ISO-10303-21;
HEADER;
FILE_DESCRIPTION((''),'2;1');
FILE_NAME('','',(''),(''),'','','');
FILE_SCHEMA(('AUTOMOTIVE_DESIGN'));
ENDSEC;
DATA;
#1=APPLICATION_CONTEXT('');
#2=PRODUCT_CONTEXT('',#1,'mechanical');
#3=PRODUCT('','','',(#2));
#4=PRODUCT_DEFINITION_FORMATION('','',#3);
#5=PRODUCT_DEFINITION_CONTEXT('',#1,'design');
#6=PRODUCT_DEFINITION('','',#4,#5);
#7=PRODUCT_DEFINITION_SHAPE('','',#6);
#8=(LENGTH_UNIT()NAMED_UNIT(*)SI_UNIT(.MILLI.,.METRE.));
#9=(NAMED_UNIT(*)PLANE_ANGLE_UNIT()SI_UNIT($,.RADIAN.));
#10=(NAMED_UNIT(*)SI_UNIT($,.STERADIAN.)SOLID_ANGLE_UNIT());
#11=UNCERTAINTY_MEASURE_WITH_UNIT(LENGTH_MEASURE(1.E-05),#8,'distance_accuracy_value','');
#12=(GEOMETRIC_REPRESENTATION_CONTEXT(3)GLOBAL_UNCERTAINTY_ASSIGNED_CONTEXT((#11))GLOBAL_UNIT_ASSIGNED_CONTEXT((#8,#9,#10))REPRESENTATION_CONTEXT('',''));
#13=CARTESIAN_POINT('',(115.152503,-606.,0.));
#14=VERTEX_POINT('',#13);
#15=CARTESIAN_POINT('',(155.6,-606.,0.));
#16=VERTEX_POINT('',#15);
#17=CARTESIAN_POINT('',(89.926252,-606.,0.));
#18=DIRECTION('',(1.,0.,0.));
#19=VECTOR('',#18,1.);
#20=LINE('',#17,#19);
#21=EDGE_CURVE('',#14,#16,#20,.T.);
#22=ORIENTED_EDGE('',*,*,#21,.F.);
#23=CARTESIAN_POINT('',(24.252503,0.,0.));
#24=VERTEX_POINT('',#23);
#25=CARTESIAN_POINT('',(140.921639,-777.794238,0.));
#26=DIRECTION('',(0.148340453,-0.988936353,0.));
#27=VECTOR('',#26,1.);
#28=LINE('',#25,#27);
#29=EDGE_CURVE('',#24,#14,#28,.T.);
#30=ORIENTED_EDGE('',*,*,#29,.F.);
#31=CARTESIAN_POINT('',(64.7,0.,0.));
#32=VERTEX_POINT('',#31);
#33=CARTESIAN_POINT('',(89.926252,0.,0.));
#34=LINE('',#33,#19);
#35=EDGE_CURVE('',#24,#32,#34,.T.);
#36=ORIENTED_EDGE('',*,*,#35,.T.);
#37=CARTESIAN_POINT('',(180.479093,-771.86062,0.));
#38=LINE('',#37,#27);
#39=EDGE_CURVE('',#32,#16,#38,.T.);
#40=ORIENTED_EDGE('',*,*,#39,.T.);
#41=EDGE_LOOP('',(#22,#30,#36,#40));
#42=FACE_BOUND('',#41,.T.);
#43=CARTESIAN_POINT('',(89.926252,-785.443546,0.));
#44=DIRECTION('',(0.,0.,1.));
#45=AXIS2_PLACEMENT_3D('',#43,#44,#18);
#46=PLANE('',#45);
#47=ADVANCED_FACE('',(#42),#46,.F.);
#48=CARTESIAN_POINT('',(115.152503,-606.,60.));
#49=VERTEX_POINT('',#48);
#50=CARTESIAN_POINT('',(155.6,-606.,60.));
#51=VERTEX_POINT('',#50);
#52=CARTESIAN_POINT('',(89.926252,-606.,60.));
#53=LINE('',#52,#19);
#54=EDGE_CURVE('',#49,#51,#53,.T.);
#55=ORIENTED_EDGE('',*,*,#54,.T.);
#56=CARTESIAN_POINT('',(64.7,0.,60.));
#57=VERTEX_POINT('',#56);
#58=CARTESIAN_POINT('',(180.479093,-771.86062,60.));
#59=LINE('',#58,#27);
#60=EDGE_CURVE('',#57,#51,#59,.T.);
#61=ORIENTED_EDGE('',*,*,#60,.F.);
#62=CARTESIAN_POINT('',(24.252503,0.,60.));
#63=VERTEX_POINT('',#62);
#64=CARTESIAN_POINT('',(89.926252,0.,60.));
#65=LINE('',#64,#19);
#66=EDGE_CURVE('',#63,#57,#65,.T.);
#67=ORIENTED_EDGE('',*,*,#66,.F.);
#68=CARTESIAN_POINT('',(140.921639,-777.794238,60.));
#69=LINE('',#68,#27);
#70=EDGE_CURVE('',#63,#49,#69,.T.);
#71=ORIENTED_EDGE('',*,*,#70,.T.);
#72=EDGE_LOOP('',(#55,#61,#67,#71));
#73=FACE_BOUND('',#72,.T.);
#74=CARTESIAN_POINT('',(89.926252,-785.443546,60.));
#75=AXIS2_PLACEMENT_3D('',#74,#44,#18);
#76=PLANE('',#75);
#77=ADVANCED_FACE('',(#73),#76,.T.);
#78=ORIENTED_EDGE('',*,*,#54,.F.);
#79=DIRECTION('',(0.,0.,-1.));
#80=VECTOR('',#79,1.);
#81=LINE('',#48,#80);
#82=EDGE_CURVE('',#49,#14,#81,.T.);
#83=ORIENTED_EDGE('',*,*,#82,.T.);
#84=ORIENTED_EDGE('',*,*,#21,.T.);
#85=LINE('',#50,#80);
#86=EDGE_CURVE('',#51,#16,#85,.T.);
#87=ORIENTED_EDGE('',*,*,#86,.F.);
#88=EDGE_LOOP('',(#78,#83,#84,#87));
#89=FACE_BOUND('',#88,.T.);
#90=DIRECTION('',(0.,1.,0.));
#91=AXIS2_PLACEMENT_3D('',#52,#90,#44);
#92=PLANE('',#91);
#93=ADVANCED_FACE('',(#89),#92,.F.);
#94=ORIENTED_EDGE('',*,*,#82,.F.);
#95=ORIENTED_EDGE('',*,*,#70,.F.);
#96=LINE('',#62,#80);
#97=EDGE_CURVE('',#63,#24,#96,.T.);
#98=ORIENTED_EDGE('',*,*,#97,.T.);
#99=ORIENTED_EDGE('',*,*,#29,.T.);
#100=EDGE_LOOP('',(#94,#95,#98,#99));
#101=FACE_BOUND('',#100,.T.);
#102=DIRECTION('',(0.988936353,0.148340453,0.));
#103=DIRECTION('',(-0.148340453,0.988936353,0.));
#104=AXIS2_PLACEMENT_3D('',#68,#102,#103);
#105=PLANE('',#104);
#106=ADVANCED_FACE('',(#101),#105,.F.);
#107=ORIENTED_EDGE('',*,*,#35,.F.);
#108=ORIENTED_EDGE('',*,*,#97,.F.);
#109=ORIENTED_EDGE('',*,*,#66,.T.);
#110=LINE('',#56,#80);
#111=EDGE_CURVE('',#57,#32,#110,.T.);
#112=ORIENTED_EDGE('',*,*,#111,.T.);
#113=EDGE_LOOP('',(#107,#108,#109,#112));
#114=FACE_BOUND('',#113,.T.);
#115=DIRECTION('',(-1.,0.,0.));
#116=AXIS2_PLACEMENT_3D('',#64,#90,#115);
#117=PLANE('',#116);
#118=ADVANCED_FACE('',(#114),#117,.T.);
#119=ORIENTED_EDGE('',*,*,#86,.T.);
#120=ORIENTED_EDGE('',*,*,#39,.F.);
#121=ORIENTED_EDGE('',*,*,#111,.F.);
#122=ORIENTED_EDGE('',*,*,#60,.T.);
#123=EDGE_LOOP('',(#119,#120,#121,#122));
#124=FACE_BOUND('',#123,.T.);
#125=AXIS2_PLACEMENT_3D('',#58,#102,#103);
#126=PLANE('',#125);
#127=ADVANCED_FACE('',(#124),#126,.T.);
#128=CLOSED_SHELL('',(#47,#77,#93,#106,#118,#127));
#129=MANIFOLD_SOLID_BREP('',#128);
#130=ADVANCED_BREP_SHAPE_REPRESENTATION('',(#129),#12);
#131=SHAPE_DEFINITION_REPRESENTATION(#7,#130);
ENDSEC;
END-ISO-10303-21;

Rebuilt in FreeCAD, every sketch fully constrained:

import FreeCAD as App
import Part
import Sketcher
from FreeCAD import Vector
Q = App.Units.Quantity


def add_polygon(sketch, points):
    """Adds a closed chain of lines whose ends are joined by coincident constraints."""
    first, n = sketch.GeometryCount, len(points)
    for a, b in zip(points, points[1:] + points[:1]):
        sketch.addGeometry(Part.LineSegment(App.Vector(*a, 0), App.Vector(*b, 0)), False)
    for i in range(n):
        sketch.addConstraint(Sketcher.Constraint("Coincident", first + i, 2, first + (i + 1) % n, 1))

doc = App.newDocument("Part")
body = doc.addObject("PartDesign::Body", "Body")

# Sketch on XY plane
sketch1 = body.newObject("Sketcher::SketchObject", "Sketch")
sketch1.AttachmentSupport = (doc.getObject("XY_Plane"), [""])
sketch1.MapMode = "FlatFace"
add_polygon(sketch1, [(24, 0), (115, -606), (156, -606), (65, 0)])  # lines 0-3
sketch1.addConstraint([
    Sketcher.Constraint("Horizontal", 1),
    Sketcher.Constraint("Horizontal", 3),
    Sketcher.Constraint("PointOnObject", 2, 2, -1),
    Sketcher.Constraint("Parallel", 0, 2),
    Sketcher.Constraint("DistanceY", 0, 2, -1, 1, Q("606 mm")),
    Sketcher.Constraint("DistanceX", -1, 1, 1, 2, Q("155.6 mm")),
    Sketcher.Constraint("DistanceX", -1, 1, 2, 2, Q("64.7 mm")),
    Sketcher.Constraint("DistanceX", 1, 1, 1, 2, Q("40.447497 mm")),
])
pad1 = body.newObject("PartDesign::Pad", "Pad")
pad1.Profile = sketch1
pad1.Length = 60

doc.recompute()
